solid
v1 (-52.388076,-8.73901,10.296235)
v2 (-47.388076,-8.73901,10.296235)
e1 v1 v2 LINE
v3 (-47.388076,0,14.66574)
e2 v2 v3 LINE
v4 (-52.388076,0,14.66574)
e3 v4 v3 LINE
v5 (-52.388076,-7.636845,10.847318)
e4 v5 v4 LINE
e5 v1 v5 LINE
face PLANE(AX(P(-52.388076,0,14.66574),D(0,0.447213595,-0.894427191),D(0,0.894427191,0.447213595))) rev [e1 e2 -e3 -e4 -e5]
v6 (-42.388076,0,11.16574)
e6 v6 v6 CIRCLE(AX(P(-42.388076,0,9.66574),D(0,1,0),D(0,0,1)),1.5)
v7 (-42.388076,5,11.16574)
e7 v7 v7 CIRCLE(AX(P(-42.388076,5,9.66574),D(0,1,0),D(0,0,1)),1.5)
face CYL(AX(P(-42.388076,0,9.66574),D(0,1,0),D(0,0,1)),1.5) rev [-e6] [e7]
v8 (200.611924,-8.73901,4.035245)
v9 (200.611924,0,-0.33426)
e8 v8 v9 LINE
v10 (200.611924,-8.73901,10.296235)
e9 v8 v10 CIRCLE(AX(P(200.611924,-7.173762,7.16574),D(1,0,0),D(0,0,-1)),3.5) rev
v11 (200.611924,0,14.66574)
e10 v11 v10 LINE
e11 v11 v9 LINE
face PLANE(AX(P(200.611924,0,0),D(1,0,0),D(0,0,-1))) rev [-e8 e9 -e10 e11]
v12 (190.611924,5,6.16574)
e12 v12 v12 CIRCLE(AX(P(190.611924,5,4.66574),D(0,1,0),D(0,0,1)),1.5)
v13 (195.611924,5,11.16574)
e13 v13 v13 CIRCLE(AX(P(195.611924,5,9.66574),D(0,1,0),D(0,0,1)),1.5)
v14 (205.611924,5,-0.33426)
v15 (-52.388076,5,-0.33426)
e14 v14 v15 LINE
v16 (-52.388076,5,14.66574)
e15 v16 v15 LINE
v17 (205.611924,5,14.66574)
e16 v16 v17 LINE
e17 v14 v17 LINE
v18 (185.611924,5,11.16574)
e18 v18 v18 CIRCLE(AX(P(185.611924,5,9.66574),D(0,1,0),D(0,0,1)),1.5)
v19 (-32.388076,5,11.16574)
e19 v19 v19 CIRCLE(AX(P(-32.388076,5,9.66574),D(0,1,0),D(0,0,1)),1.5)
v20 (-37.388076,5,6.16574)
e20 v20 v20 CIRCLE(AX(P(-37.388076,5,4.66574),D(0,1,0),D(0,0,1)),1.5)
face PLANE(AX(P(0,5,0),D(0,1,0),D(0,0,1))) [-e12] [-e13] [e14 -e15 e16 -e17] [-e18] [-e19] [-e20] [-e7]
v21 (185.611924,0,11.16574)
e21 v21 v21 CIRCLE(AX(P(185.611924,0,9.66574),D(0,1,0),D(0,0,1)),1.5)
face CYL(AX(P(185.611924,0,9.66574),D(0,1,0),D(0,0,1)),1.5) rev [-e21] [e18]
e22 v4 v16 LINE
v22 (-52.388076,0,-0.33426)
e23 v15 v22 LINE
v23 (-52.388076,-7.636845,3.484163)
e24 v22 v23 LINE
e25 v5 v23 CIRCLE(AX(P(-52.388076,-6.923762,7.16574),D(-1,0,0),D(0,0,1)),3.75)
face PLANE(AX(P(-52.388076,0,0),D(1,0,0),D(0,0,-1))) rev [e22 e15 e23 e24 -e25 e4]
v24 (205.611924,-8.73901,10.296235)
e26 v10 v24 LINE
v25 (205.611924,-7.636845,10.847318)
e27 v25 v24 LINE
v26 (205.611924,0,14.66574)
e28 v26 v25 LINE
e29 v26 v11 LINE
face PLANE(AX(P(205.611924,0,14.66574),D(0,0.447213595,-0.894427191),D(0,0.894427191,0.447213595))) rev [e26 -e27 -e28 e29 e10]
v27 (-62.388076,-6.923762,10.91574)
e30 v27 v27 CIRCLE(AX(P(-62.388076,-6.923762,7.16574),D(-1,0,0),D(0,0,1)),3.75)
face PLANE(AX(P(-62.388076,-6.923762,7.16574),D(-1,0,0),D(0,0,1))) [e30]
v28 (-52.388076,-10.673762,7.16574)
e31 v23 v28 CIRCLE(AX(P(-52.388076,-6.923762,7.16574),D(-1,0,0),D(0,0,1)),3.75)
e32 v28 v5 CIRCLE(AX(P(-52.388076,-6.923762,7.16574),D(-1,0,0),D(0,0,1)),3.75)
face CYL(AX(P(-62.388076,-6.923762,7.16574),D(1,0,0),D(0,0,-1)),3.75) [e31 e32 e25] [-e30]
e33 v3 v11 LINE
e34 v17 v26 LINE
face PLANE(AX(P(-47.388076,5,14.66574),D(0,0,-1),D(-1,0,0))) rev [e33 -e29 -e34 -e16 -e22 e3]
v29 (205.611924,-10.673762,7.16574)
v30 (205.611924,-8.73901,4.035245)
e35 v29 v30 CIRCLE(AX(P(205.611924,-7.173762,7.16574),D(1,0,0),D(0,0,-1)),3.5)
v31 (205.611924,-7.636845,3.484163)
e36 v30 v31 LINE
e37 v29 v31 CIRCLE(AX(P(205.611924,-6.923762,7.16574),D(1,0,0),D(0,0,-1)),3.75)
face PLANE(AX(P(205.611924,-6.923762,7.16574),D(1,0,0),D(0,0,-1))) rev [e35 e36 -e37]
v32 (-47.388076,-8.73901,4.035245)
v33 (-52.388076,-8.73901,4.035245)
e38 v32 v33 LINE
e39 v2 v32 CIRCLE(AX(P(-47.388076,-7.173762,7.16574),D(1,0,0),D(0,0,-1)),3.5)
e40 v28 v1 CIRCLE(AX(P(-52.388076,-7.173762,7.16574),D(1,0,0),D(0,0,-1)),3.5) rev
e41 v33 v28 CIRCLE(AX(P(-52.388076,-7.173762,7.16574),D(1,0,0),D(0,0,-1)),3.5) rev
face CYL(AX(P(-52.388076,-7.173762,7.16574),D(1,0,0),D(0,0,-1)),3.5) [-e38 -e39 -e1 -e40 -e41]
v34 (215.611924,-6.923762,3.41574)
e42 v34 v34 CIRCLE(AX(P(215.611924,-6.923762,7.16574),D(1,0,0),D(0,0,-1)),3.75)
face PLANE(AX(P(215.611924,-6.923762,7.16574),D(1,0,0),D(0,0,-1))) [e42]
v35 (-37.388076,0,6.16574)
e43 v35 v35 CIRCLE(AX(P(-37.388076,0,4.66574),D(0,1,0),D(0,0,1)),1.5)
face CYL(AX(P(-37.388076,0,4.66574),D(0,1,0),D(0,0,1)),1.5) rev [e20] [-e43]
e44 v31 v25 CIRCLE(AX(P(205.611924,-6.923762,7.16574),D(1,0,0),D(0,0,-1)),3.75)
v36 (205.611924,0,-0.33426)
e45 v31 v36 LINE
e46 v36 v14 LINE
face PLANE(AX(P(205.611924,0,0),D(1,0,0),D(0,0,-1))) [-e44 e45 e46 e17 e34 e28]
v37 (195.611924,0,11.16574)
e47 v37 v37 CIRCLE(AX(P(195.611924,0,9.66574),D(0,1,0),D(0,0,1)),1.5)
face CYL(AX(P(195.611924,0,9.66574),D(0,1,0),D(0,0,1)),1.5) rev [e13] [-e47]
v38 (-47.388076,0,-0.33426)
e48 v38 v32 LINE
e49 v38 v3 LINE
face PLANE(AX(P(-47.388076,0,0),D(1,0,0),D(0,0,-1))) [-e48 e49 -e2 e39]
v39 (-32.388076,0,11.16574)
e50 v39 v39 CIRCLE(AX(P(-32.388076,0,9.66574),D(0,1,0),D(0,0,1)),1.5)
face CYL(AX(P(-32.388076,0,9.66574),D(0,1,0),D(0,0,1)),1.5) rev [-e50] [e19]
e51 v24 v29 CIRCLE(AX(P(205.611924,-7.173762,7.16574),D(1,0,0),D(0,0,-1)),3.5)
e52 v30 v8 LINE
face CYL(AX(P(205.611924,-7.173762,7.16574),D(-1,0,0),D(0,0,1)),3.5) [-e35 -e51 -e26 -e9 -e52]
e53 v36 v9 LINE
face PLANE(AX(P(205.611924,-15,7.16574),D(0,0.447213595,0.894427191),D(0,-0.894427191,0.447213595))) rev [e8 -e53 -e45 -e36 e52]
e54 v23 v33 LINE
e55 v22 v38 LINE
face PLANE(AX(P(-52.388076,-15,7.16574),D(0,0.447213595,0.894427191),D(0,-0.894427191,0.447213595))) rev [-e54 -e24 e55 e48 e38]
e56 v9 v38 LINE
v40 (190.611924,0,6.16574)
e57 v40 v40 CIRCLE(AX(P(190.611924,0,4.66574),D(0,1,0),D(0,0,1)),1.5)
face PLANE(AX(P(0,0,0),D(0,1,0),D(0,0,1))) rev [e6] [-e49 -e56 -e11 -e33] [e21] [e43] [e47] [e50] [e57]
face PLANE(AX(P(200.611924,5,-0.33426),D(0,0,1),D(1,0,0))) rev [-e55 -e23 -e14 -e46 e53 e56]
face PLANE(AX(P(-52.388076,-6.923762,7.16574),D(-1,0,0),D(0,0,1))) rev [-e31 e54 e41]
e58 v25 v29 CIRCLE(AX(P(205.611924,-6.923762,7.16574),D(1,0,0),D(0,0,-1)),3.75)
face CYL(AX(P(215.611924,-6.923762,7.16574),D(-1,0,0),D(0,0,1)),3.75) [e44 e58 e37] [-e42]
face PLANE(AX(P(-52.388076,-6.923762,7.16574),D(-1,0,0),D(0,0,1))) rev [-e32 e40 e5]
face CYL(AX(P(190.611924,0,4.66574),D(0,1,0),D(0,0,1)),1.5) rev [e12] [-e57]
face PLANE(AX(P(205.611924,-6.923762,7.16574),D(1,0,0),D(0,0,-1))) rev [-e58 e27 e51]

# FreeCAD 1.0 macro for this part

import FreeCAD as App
import Part
import Sketcher
Q = App.Units.Quantity


def edges_at(feature, points):
    """Names of the edges that pass closest to the given points."""
    edges = feature.Shape.Edges
    near = lambda p: min(range(len(edges)), key=lambda i: edges[i].distToShape(Part.Vertex(*p))[0])
    return sorted({f"Edge{near(p) + 1}" for p in points})

doc = App.newDocument("Part")
params = doc.addObject("Spreadsheet::Sheet", "Params")
for row, (alias, value) in enumerate([
    ("sketch1_width", "248 mm"),
    ("sketch1_height", "15 mm"),
    ("pad1_length", "5 mm"),
    ("sketch2_diameter", "3 mm"),
    ("pocket1_length", "5 mm"),
    ("sketch3_width", "5 mm"),
    ("sketch3_height", "15 mm"),
    ("pad2_length", "5 mm"),
    ("fillet_radius", "3.5 mm"),
    ("sketch4_diameter", "7.5 mm"),
    ("pad3_length", "10 mm"),
    ("sketch5_width", "5 mm"),
    ("sketch5_height", "15 mm"),
    ("pad4_length", "5 mm"),
    ("fillet2_radius", "3.5 mm"),
    ("sketch6_diameter", "7.5 mm"),
    ("pad5_length", "10 mm"),
], start=1):
    params.set(f"A{row}", alias)
    params.set(f"B{row}", "=" + value)
    params.setAlias(f"B{row}", alias)

body = doc.addObject("PartDesign::Body", "Body")

# Sketch on XZ plane
sketch1 = body.newObject("Sketcher::SketchObject", "Sketch")
sketch1.AttachmentSupport = (doc.getObject("XZ_Plane"), [""])
sketch1.MapMode = "FlatFace"
sketch1.addGeometry(Part.LineSegment(App.Vector(-47, 0, 0), App.Vector(-47, 15, 0)), False)
sketch1.addGeometry(Part.LineSegment(App.Vector(-47, 15, 0), App.Vector(201, 15, 0)), False)
sketch1.addGeometry(Part.LineSegment(App.Vector(201, 15, 0), App.Vector(201, 0, 0)), False)
sketch1.addGeometry(Part.LineSegment(App.Vector(201, 0, 0), App.Vector(-47, 0, 0)), False)
sketch1.addConstraint(Sketcher.Constraint("Coincident", 0, 2, 1, 1))
sketch1.addConstraint(Sketcher.Constraint("Coincident", 1, 2, 2, 1))
sketch1.addConstraint(Sketcher.Constraint("Coincident", 2, 2, 3, 1))
sketch1.addConstraint(Sketcher.Constraint("Coincident", 3, 2, 0, 1))
sketch1.addConstraint(Sketcher.Constraint("Vertical", 0))
sketch1.addConstraint(Sketcher.Constraint("Horizontal", 1))
sketch1.addConstraint(Sketcher.Constraint("Vertical", 2))
sketch1.addConstraint(Sketcher.Constraint("Horizontal", 3))
sketch1.addConstraint(Sketcher.Constraint("DistanceX", 1, 1, 1, 2, Q("248 mm")))
sketch1.addConstraint(Sketcher.Constraint("DistanceY", 0, 1, 0, 2, Q("15 mm")))
sketch1.addConstraint(Sketcher.Constraint("DistanceY", -1, 1, 0, 2, Q("14.66574 mm")))
sketch1.addConstraint(Sketcher.Constraint("DistanceX", 0, 2, -1, 1, Q("47.388076 mm")))
sketch1.setExpression("Constraints[8]", "Params.sketch1_width")
sketch1.setExpression("Constraints[9]", "Params.sketch1_height")
pad1 = body.newObject("PartDesign::Pad", "Pad")
pad1.Profile = sketch1
pad1.setExpression("Length", "Params.pad1_length")
pad1.Reversed = True

# Sketch on XZ plane
sketch2 = body.newObject("Sketcher::SketchObject", "Sketch001")
sketch2.AttachmentSupport = (doc.getObject("XZ_Plane"), [""])
sketch2.MapMode = "FlatFace"
sketch2.AttachmentOffset = App.Placement(App.Vector(0, 0, -5), App.Rotation())
sketch2.addGeometry(Part.Circle(App.Vector(-42.4, 9.7, 0), App.Vector(0, 0, 1), 1.5), False)
sketch2.addGeometry(Part.Circle(App.Vector(-37.4, 4.7, 0), App.Vector(0, 0, 1), 1.5), False)
sketch2.addGeometry(Part.Circle(App.Vector(-32.4, 9.7, 0), App.Vector(0, 0, 1), 1.5), False)
sketch2.addGeometry(Part.Circle(App.Vector(185.6, 9.7, 0), App.Vector(0, 0, 1), 1.5), False)
sketch2.addGeometry(Part.Circle(App.Vector(190.6, 4.7, 0), App.Vector(0, 0, 1), 1.5), False)
sketch2.addGeometry(Part.Circle(App.Vector(195.6, 9.7, 0), App.Vector(0, 0, 1), 1.5), False)
sketch2.addConstraint(Sketcher.Constraint("Equal", 0, 1))
sketch2.addConstraint(Sketcher.Constraint("Equal", 1, 2))
sketch2.addConstraint(Sketcher.Constraint("Equal", 2, 3))
sketch2.addConstraint(Sketcher.Constraint("Equal", 3, 4))
sketch2.addConstraint(Sketcher.Constraint("Equal", 4, 5))
sketch2.addConstraint(Sketcher.Constraint("Horizontal", 0, 3, 2, 3))
sketch2.addConstraint(Sketcher.Constraint("Horizontal", 2, 3, 3, 3))
sketch2.addConstraint(Sketcher.Constraint("Horizontal", 1, 3, 4, 3))
sketch2.addConstraint(Sketcher.Constraint("Horizontal", 3, 3, 5, 3))
sketch2.addConstraint(Sketcher.Constraint("Diameter", 0, Q("3 mm")))
sketch2.addConstraint(Sketcher.Constraint("DistanceX", 0, 3, 1, 3, Q("5 mm")))
sketch2.addConstraint(Sketcher.Constraint("DistanceY", 1, 3, 0, 3, Q("5 mm")))
sketch2.addConstraint(Sketcher.Constraint("DistanceX", 1, 3, 2, 3, Q("5 mm")))
sketch2.addConstraint(Sketcher.Constraint("DistanceX", 2, 3, 3, 3, Q("218 mm")))
sketch2.addConstraint(Sketcher.Constraint("DistanceX", 3, 3, 4, 3, Q("5 mm")))
sketch2.addConstraint(Sketcher.Constraint("DistanceX", 4, 3, 5, 3, Q("5 mm")))
sketch2.addConstraint(Sketcher.Constraint("DistanceY", -1, 1, 0, 3, Q("9.66574 mm")))
sketch2.addConstraint(Sketcher.Constraint("DistanceX", 0, 3, -1, 1, Q("42.388076 mm")))
sketch2.setExpression("Constraints[9]", "Params.sketch2_diameter")
pocket1 = body.newObject("PartDesign::Pocket", "Pocket")
pocket1.Profile = sketch2
pocket1.setExpression("Length", "Params.pocket1_length")
pocket1.Reversed = True

# Sketch on YZ plane
sketch3 = body.newObject("Sketcher::SketchObject", "Sketch002")
sketch3.AttachmentSupport = (doc.getObject("YZ_Plane"), [""])
sketch3.MapMode = "FlatFace"
sketch3.AttachmentOffset = App.Placement(App.Vector(0, 0, 200.611924), App.Rotation())
sketch3.addGeometry(Part.LineSegment(App.Vector(0, 0, 0), App.Vector(5, 0, 0)), False)
sketch3.addGeometry(Part.LineSegment(App.Vector(5, 0, 0), App.Vector(5, 15, 0)), False)
sketch3.addGeometry(Part.LineSegment(App.Vector(5, 15, 0), App.Vector(0, 15, 0)), False)
sketch3.addGeometry(Part.LineSegment(App.Vector(0, 15, 0), App.Vector(-15, 7, 0)), False)
sketch3.addGeometry(Part.LineSegment(App.Vector(-15, 7, 0), App.Vector(0, 0, 0)), False)
sketch3.addConstraint(Sketcher.Constraint("Coincident", 0, 2, 1, 1))
sketch3.addConstraint(Sketcher.Constraint("Coincident", 1, 2, 2, 1))
sketch3.addConstraint(Sketcher.Constraint("Coincident", 2, 2, 3, 1))
sketch3.addConstraint(Sketcher.Constraint("Coincident", 3, 2, 4, 1))
sketch3.addConstraint(Sketcher.Constraint("Coincident", 4, 2, 0, 1))
sketch3.addConstraint(Sketcher.Constraint("Horizontal", 0))
sketch3.addConstraint(Sketcher.Constraint("Vertical", 1))
sketch3.addConstraint(Sketcher.Constraint("Horizontal", 2))
sketch3.addConstraint(Sketcher.Constraint("PointOnObject", 2, 2, -2))
sketch3.addConstraint(Sketcher.Constraint("PointOnObject", 4, 2, -2))
sketch3.addConstraint(Sketcher.Constraint("Equal", 3, 4))
sketch3.addConstraint(Sketcher.Constraint("DistanceX", 0, 1, 0, 2, Q("5 mm")))
sketch3.addConstraint(Sketcher.Constraint("DistanceY", 1, 1, 1, 2, Q("15 mm")))
sketch3.addConstraint(Sketcher.Constraint("DistanceX", 3, 2, -1, 1, Q("15 mm")))
sketch3.addConstraint(Sketcher.Constraint("DistanceY", 0, 2, -1, 1, Q("0.33426 mm")))
sketch3.setExpression("Constraints[11]", "Params.sketch3_width")
sketch3.setExpression("Constraints[12]", "Params.sketch3_height")
pad2 = body.newObject("PartDesign::Pad", "Pad001")
pad2.Profile = sketch3
pad2.setExpression("Length", "Params.pad2_length")
doc.recompute()

fillet = body.newObject("PartDesign::Fillet", "Fillet")
fillet.Base = (pad2, edges_at(pad2, [(203.112, -15, 7.166)]))
fillet.setExpression("Radius", "Params.fillet_radius")

# Sketch on YZ plane
sketch4 = body.newObject("Sketcher::SketchObject", "Sketch003")
sketch4.AttachmentSupport = (doc.getObject("YZ_Plane"), [""])
sketch4.MapMode = "FlatFace"
sketch4.AttachmentOffset = App.Placement(App.Vector(0, 0, 205.611924), App.Rotation())
sketch4.addGeometry(Part.Circle(App.Vector(-6.9, 7.2, 0), App.Vector(0, 0, 1), 3.8), False)
sketch4.addConstraint(Sketcher.Constraint("Diameter", 0, Q("7.5 mm")))
sketch4.addConstraint(Sketcher.Constraint("DistanceY", -1, 1, 0, 3, Q("7.16574 mm")))
sketch4.addConstraint(Sketcher.Constraint("DistanceX", 0, 3, -1, 1, Q("6.923762 mm")))
sketch4.setExpression("Constraints[0]", "Params.sketch4_diameter")
pad3 = body.newObject("PartDesign::Pad", "Pad002")
pad3.Profile = sketch4
pad3.setExpression("Length", "Params.pad3_length")

# Sketch on YZ plane
sketch5 = body.newObject("Sketcher::SketchObject", "Sketch004")
sketch5.AttachmentSupport = (doc.getObject("YZ_Plane"), [""])
sketch5.MapMode = "FlatFace"
sketch5.AttachmentOffset = App.Placement(App.Vector(0, 0, -47.388076), App.Rotation())
sketch5.addGeometry(Part.LineSegment(App.Vector(5, 0, 0), App.Vector(0, 0, 0)), False)
sketch5.addGeometry(Part.LineSegment(App.Vector(0, 0, 0), App.Vector(-15, 7, 0)), False)
sketch5.addGeometry(Part.LineSegment(App.Vector(-15, 7, 0), App.Vector(0, 15, 0)), False)
sketch5.addGeometry(Part.LineSegment(App.Vector(0, 15, 0), App.Vector(5, 15, 0)), False)
sketch5.addGeometry(Part.LineSegment(App.Vector(5, 15, 0), App.Vector(5, 0, 0)), False)
sketch5.addConstraint(Sketcher.Constraint("Coincident", 0, 2, 1, 1))
sketch5.addConstraint(Sketcher.Constraint("Coincident", 1, 2, 2, 1))
sketch5.addConstraint(Sketcher.Constraint("Coincident", 2, 2, 3, 1))
sketch5.addConstraint(Sketcher.Constraint("Coincident", 3, 2, 4, 1))
sketch5.addConstraint(Sketcher.Constraint("Coincident", 4, 2, 0, 1))
sketch5.addConstraint(Sketcher.Constraint("Horizontal", 0))
sketch5.addConstraint(Sketcher.Constraint("Horizontal", 3))
sketch5.addConstraint(Sketcher.Constraint("Vertical", 4))
sketch5.addConstraint(Sketcher.Constraint("PointOnObject", 0, 2, -2))
sketch5.addConstraint(Sketcher.Constraint("PointOnObject", 2, 2, -2))
sketch5.addConstraint(Sketcher.Constraint("Equal", 1, 2))
sketch5.addConstraint(Sketcher.Constraint("DistanceX", 0, 2, 0, 1, Q("5 mm")))
sketch5.addConstraint(Sketcher.Constraint("DistanceY", 4, 2, 4, 1, Q("15 mm")))
sketch5.addConstraint(Sketcher.Constraint("DistanceX", 1, 2, -1, 1, Q("15 mm")))
sketch5.addConstraint(Sketcher.Constraint("DistanceY", 0, 2, -1, 1, Q("0.33426 mm")))
sketch5.setExpression("Constraints[11]", "Params.sketch5_width")
sketch5.setExpression("Constraints[12]", "Params.sketch5_height")
pad4 = body.newObject("PartDesign::Pad", "Pad003")
pad4.Profile = sketch5
pad4.setExpression("Length", "Params.pad4_length")
pad4.Reversed = True
doc.recompute()

fillet2 = body.newObject("PartDesign::Fillet", "Fillet001")
fillet2.Base = (pad4, edges_at(pad4, [(-49.888, -15, 7.166)]))
fillet2.setExpression("Radius", "Params.fillet2_radius")

# Sketch on YZ plane
sketch6 = body.newObject("Sketcher::SketchObject", "Sketch005")
sketch6.AttachmentSupport = (doc.getObject("YZ_Plane"), [""])
sketch6.MapMode = "FlatFace"
sketch6.AttachmentOffset = App.Placement(App.Vector(0, 0, -62.388076), App.Rotation())
sketch6.addGeometry(Part.Circle(App.Vector(-6.9, 7.2, 0), App.Vector(0, 0, 1), 3.8), False)
sketch6.addConstraint(Sketcher.Constraint("Diameter", 0, Q("7.5 mm")))
sketch6.addConstraint(Sketcher.Constraint("DistanceY", -1, 1, 0, 3, Q("7.16574 mm")))
sketch6.addConstraint(Sketcher.Constraint("DistanceX", 0, 3, -1, 1, Q("6.923762 mm")))
sketch6.setExpression("Constraints[0]", "Params.sketch6_diameter")
pad5 = body.newObject("PartDesign::Pad", "Pad004")
pad5.Profile = sketch6
pad5.setExpression("Length", "Params.pad5_length")

doc.recompute()
